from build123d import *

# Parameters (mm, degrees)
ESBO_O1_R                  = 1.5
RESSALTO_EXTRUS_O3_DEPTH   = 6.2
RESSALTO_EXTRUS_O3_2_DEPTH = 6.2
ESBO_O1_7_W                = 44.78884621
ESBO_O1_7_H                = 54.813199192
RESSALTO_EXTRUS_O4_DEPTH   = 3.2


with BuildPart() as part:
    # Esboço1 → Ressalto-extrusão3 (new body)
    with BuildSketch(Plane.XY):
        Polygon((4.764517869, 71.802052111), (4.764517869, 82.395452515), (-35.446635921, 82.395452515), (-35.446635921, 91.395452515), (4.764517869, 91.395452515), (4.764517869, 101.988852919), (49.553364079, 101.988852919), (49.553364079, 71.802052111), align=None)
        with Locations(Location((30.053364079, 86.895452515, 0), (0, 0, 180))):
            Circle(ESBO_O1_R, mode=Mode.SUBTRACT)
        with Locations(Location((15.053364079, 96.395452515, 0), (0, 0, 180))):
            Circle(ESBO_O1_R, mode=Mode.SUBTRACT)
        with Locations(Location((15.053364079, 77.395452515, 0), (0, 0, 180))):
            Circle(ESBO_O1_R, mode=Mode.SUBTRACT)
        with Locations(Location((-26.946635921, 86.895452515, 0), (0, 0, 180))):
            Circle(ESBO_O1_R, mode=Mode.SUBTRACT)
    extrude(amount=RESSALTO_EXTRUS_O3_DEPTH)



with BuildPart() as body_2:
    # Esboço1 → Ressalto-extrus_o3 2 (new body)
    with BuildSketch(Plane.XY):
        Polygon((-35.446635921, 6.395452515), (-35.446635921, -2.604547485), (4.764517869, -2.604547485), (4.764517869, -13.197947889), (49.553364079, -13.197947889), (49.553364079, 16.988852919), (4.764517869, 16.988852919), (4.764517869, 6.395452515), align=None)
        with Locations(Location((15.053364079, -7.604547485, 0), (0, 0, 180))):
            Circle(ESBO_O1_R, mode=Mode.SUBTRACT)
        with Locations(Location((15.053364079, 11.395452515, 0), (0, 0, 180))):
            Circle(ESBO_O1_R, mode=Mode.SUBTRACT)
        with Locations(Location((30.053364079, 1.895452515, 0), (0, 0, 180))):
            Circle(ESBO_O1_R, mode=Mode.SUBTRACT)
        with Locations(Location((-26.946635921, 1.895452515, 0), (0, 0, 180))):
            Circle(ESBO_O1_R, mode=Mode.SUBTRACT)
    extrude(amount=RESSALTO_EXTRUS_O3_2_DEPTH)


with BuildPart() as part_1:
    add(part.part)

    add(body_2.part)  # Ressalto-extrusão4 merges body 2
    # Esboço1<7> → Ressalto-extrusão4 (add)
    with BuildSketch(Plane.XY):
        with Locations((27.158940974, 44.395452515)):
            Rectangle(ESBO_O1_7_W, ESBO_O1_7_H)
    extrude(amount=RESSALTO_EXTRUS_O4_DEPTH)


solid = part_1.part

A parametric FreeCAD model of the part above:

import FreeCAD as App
import Part
import Sketcher
from FreeCAD import Vector

doc = App.newDocument("Part")
body = doc.addObject("PartDesign::Body", "Body")

sketch1 = body.newObject("Sketcher::SketchObject", "Sketch")
sketch1.AttachmentSupport = (doc.getObject("XY_Plane"), [""])
sketch1.MapMode = "FlatFace"
sketch1.addGeometry(Part.LineSegment(Vector(4.8, 82.4, 0), Vector(4.8, 71.8, 0)), False)
sketch1.addGeometry(Part.LineSegment(Vector(4.8, 71.8, 0), Vector(49.6, 71.8, 0)), False)
sketch1.addGeometry(Part.LineSegment(Vector(49.6, 71.8, 0), Vector(49.6, 102, 0)), False)
sketch1.addGeometry(Part.LineSegment(Vector(49.6, 102, 0), Vector(4.8, 102, 0)), False)
sketch1.addGeometry(Part.LineSegment(Vector(4.8, 102, 0), Vector(4.8, 91.4, 0)), False)
sketch1.addGeometry(Part.LineSegment(Vector(4.8, 91.4, 0), Vector(-35.4, 91.4, 0)), False)
sketch1.addGeometry(Part.LineSegment(Vector(-35.4, 91.4, 0), Vector(-35.4, 82.4, 0)), False)
sketch1.addGeometry(Part.LineSegment(Vector(-35.4, 82.4, 0), Vector(4.8, 82.4, 0)), False)
sketch1.addGeometry(Part.Circle(Vector(15.1, 77.4, 0), Vector(0, 0, 1), 1.5), False)
sketch1.addGeometry(Part.Circle(Vector(30.1, 86.9, 0), Vector(0, 0, 1), 1.5), False)
sketch1.addGeometry(Part.Circle(Vector(15.1, 96.4, 0), Vector(0, 0, 1), 1.5), False)
sketch1.addGeometry(Part.Circle(Vector(-26.9, 86.9, 0), Vector(0, 0, 1), 1.5), False)
sketch1.addConstraint(Sketcher.Constraint("Coincident", 0, 2, 1, 1))
sketch1.addConstraint(Sketcher.Constraint("Coincident", 1, 2, 2, 1))
sketch1.addConstraint(Sketcher.Constraint("Coincident", 2, 2, 3, 1))
sketch1.addConstraint(Sketcher.Constraint("Coincident", 3, 2, 4, 1))
sketch1.addConstraint(Sketcher.Constraint("Coincident", 4, 2, 5, 1))
sketch1.addConstraint(Sketcher.Constraint("Coincident", 5, 2, 6, 1))
sketch1.addConstraint(Sketcher.Constraint("Coincident", 6, 2, 7, 1))
sketch1.addConstraint(Sketcher.Constraint("Coincident", 7, 2, 0, 1))
sketch1.addConstraint(Sketcher.Constraint("Vertical", 0))
sketch1.addConstraint(Sketcher.Constraint("Horizontal", 1))
sketch1.addConstraint(Sketcher.Constraint("Vertical", 2))
sketch1.addConstraint(Sketcher.Constraint("Horizontal", 3))
sketch1.addConstraint(Sketcher.Constraint("Vertical", 4))
sketch1.addConstraint(Sketcher.Constraint("Horizontal", 5))
sketch1.addConstraint(Sketcher.Constraint("Vertical", 6))
sketch1.addConstraint(Sketcher.Constraint("Horizontal", 7))
sketch1.addConstraint(Sketcher.Constraint("Equal", 8, 9))
sketch1.addConstraint(Sketcher.Constraint("Equal", 9, 10))
sketch1.addConstraint(Sketcher.Constraint("Equal", 10, 11))
sketch1.addConstraint(Sketcher.Constraint("Horizontal", 9, 3, 11, 3))
sketch1.addConstraint(Sketcher.Constraint("Vertical", 8, 3, 10, 3))
sketch1.addConstraint(Sketcher.Constraint("Vertical", 0, 2, 3, 2))
sketch1.addConstraint(Sketcher.Constraint("Equal", 0, 4))
sketch1.addConstraint(Sketcher.Constraint("Diameter", 8, 3.0))
sketch1.addConstraint(Sketcher.Constraint("DistanceY", 6, 2, 6, 1, 9.0))
sketch1.addConstraint(Sketcher.Constraint("DistanceX", 8, 3, 9, 3, 15.0))
sketch1.addConstraint(Sketcher.Constraint("DistanceY", 8, 3, 10, 3, 19.0))
sketch1.addConstraint(Sketcher.Constraint("DistanceX", 11, 3, 8, 3, 42.0))
sketch1.addConstraint(Sketcher.Constraint("DistanceY", 4, 2, 10, 3, 5.0))
sketch1.addConstraint(Sketcher.Constraint("DistanceY", 8, 3, 9, 3, 9.5))
sketch1.addConstraint(Sketcher.Constraint("DistanceX", 9, 3, 1, 2, 19.5))
sketch1.addConstraint(Sketcher.Constraint("DistanceX", 5, 2, 11, 3, 8.5))
sketch1.addConstraint(Sketcher.Constraint("DistanceY", 0, 2, 0, 1, 10.5934))
sketch1.addConstraint(Sketcher.Constraint("DistanceX", 1, 1, 1, 2, 44.788846))
sketch1.addConstraint(Sketcher.Constraint("DistanceX", -1, 1, 8, 3, 15.053364))
sketch1.addConstraint(Sketcher.Constraint("DistanceY", -1, 1, 8, 3, 77.395453))
pad1 = body.newObject("PartDesign::Pad", "Pad")
pad1.Profile = sketch1
pad1.Length = 6.2
body2 = doc.addObject("PartDesign::Body", "Body001")

sketch2 = body2.newObject("Sketcher::SketchObject", "Sketch001")
sketch2.AttachmentSupport = (doc.getObject("XY_Plane001"), [""])
sketch2.MapMode = "FlatFace"
sketch2.addGeometry(Part.LineSegment(Vector(-35.4, 6.4, 0), Vector(-35.4, -2.6, 0)), False)
sketch2.addGeometry(Part.LineSegment(Vector(-35.4, -2.6, 0), Vector(4.8, -2.6, 0)), False)
sketch2.addGeometry(Part.LineSegment(Vector(4.8, -2.6, 0), Vector(4.8, -13.2, 0)), False)
sketch2.addGeometry(Part.LineSegment(Vector(4.8, -13.2, 0), Vector(49.6, -13.2, 0)), False)
sketch2.addGeometry(Part.LineSegment(Vector(49.6, -13.2, 0), Vector(49.6, 17, 0)), False)
sketch2.addGeometry(Part.LineSegment(Vector(49.6, 17, 0), Vector(4.8, 17, 0)), False)
sketch2.addGeometry(Part.LineSegment(Vector(4.8, 17, 0), Vector(4.8, 6.4, 0)), False)
sketch2.addGeometry(Part.LineSegment(Vector(4.8, 6.4, 0), Vector(-35.4, 6.4, 0)), False)
sketch2.addGeometry(Part.Circle(Vector(15.1, -7.6, 0), Vector(0, 0, 1), 1.5), False)
sketch2.addGeometry(Part.Circle(Vector(-26.9, 1.9, 0), Vector(0, 0, 1), 1.5), False)
sketch2.addGeometry(Part.Circle(Vector(30.1, 1.9, 0), Vector(0, 0, 1), 1.5), False)
sketch2.addGeometry(Part.Circle(Vector(15.1, 11.4, 0), Vector(0, 0, 1), 1.5), False)
sketch2.addConstraint(Sketcher.Constraint("Coincident", 0, 2, 1, 1))
sketch2.addConstraint(Sketcher.Constraint("Coincident", 1, 2, 2, 1))
sketch2.addConstraint(Sketcher.Constraint("Coincident", 2, 2, 3, 1))
sketch2.addConstraint(Sketcher.Constraint("Coincident", 3, 2, 4, 1))
sketch2.addConstraint(Sketcher.Constraint("Coincident", 4, 2, 5, 1))
sketch2.addConstraint(Sketcher.Constraint("Coincident", 5, 2, 6, 1))
sketch2.addConstraint(Sketcher.Constraint("Coincident", 6, 2, 7, 1))
sketch2.addConstraint(Sketcher.Constraint("Coincident", 7, 2, 0, 1))
sketch2.addConstraint(Sketcher.Constraint("Vertical", 0))
sketch2.addConstraint(Sketcher.Constraint("Horizontal", 1))
sketch2.addConstraint(Sketcher.Constraint("Vertical", 2))
sketch2.addConstraint(Sketcher.Constraint("Horizontal", 3))
sketch2.addConstraint(Sketcher.Constraint("Vertical", 4))
sketch2.addConstraint(Sketcher.Constraint("Horizontal", 5))
sketch2.addConstraint(Sketcher.Constraint("Vertical", 6))
sketch2.addConstraint(Sketcher.Constraint("Horizontal", 7))
sketch2.addConstraint(Sketcher.Constraint("Equal", 8, 9))
sketch2.addConstraint(Sketcher.Constraint("Equal", 9, 10))
sketch2.addConstraint(Sketcher.Constraint("Equal", 10, 11))
sketch2.addConstraint(Sketcher.Constraint("Horizontal", 9, 3, 10, 3))
sketch2.addConstraint(Sketcher.Constraint("Vertical", 8, 3, 11, 3))
sketch2.addConstraint(Sketcher.Constraint("Vertical", 2, 2, 5, 2))
sketch2.addConstraint(Sketcher.Constraint("Equal", 2, 6))
sketch2.addConstraint(Sketcher.Constraint("Diameter", 8, 3.0))
sketch2.addConstraint(Sketcher.Constraint("DistanceY", 0, 2, 0, 1, 9.0))
sketch2.addConstraint(Sketcher.Constraint("DistanceX", 9, 3, 8, 3, 42.0))
sketch2.addConstraint(Sketcher.Constraint("DistanceX", 8, 3, 10, 3, 15.0))
sketch2.addConstraint(Sketcher.Constraint("DistanceY", 8, 3, 11, 3, 19.0))
sketch2.addConstraint(Sketcher.Constraint("DistanceY", 8, 3, 0, 2, 5.0))
sketch2.addConstraint(Sketcher.Constraint("DistanceY", 8, 3, 9, 3, 9.5))
sketch2.addConstraint(Sketcher.Constraint("DistanceX", 0, 2, 9, 3, 8.5))
sketch2.addConstraint(Sketcher.Constraint("DistanceX", 10, 3, 3, 2, 19.5))
sketch2.addConstraint(Sketcher.Constraint("DistanceY", 2, 2, 2, 1, 10.5934))
sketch2.addConstraint(Sketcher.Constraint("DistanceX", 1, 1, 1, 2, 40.211154))
sketch2.addConstraint(Sketcher.Constraint("DistanceX", -1, 1, 8, 3, 15.053364))
sketch2.addConstraint(Sketcher.Constraint("DistanceY", 8, 3, -1, 1, 7.604547))
pad2 = body2.newObject("PartDesign::Pad", "Pad001")
pad2.Profile = sketch2
pad2.Length = 6.2
body.AllowCompound = True
doc.recompute()

boolean = body.newObject("PartDesign::Boolean", "Boolean")
boolean.Type = "Fuse"
boolean.addObjects([body2])

sketch3 = body.newObject("Sketcher::SketchObject", "Sketch002")
sketch3.AttachmentSupport = (doc.getObject("XY_Plane"), [""])
sketch3.MapMode = "FlatFace"
sketch3.addGeometry(Part.LineSegment(Vector(5, 72, 0), Vector(5, 17, 0)), False)
sketch3.addGeometry(Part.LineSegment(Vector(5, 17, 0), Vector(50, 17, 0)), False)
sketch3.addGeometry(Part.LineSegment(Vector(50, 17, 0), Vector(50, 72, 0)), False)
sketch3.addGeometry(Part.LineSegment(Vector(50, 72, 0), Vector(5, 72, 0)), False)
sketch3.addConstraint(Sketcher.Constraint("Coincident", 0, 2, 1, 1))
sketch3.addConstraint(Sketcher.Constraint("Coincident", 1, 2, 2, 1))
sketch3.addConstraint(Sketcher.Constraint("Coincident", 2, 2, 3, 1))
sketch3.addConstraint(Sketcher.Constraint("Coincident", 3, 2, 0, 1))
sketch3.addConstraint(Sketcher.Constraint("Vertical", 0))
sketch3.addConstraint(Sketcher.Constraint("Horizontal", 1))
sketch3.addConstraint(Sketcher.Constraint("Vertical", 2))
sketch3.addConstraint(Sketcher.Constraint("Horizontal", 3))
sketch3.addConstraint(Sketcher.Constraint("DistanceY", 0, 2, 0, 1, 54.813199))
sketch3.addConstraint(Sketcher.Constraint("DistanceX", 1, 1, 1, 2, 44.788846))
sketch3.addConstraint(Sketcher.Constraint("DistanceX", -1, 1, 0, 2, 4.764518))
sketch3.addConstraint(Sketcher.Constraint("DistanceY", -1, 1, 0, 2, 16.988853))
pad3 = body.newObject("PartDesign::Pad", "Pad002")
pad3.Profile = sketch3
pad3.Length = 3.2

doc.recompute()
